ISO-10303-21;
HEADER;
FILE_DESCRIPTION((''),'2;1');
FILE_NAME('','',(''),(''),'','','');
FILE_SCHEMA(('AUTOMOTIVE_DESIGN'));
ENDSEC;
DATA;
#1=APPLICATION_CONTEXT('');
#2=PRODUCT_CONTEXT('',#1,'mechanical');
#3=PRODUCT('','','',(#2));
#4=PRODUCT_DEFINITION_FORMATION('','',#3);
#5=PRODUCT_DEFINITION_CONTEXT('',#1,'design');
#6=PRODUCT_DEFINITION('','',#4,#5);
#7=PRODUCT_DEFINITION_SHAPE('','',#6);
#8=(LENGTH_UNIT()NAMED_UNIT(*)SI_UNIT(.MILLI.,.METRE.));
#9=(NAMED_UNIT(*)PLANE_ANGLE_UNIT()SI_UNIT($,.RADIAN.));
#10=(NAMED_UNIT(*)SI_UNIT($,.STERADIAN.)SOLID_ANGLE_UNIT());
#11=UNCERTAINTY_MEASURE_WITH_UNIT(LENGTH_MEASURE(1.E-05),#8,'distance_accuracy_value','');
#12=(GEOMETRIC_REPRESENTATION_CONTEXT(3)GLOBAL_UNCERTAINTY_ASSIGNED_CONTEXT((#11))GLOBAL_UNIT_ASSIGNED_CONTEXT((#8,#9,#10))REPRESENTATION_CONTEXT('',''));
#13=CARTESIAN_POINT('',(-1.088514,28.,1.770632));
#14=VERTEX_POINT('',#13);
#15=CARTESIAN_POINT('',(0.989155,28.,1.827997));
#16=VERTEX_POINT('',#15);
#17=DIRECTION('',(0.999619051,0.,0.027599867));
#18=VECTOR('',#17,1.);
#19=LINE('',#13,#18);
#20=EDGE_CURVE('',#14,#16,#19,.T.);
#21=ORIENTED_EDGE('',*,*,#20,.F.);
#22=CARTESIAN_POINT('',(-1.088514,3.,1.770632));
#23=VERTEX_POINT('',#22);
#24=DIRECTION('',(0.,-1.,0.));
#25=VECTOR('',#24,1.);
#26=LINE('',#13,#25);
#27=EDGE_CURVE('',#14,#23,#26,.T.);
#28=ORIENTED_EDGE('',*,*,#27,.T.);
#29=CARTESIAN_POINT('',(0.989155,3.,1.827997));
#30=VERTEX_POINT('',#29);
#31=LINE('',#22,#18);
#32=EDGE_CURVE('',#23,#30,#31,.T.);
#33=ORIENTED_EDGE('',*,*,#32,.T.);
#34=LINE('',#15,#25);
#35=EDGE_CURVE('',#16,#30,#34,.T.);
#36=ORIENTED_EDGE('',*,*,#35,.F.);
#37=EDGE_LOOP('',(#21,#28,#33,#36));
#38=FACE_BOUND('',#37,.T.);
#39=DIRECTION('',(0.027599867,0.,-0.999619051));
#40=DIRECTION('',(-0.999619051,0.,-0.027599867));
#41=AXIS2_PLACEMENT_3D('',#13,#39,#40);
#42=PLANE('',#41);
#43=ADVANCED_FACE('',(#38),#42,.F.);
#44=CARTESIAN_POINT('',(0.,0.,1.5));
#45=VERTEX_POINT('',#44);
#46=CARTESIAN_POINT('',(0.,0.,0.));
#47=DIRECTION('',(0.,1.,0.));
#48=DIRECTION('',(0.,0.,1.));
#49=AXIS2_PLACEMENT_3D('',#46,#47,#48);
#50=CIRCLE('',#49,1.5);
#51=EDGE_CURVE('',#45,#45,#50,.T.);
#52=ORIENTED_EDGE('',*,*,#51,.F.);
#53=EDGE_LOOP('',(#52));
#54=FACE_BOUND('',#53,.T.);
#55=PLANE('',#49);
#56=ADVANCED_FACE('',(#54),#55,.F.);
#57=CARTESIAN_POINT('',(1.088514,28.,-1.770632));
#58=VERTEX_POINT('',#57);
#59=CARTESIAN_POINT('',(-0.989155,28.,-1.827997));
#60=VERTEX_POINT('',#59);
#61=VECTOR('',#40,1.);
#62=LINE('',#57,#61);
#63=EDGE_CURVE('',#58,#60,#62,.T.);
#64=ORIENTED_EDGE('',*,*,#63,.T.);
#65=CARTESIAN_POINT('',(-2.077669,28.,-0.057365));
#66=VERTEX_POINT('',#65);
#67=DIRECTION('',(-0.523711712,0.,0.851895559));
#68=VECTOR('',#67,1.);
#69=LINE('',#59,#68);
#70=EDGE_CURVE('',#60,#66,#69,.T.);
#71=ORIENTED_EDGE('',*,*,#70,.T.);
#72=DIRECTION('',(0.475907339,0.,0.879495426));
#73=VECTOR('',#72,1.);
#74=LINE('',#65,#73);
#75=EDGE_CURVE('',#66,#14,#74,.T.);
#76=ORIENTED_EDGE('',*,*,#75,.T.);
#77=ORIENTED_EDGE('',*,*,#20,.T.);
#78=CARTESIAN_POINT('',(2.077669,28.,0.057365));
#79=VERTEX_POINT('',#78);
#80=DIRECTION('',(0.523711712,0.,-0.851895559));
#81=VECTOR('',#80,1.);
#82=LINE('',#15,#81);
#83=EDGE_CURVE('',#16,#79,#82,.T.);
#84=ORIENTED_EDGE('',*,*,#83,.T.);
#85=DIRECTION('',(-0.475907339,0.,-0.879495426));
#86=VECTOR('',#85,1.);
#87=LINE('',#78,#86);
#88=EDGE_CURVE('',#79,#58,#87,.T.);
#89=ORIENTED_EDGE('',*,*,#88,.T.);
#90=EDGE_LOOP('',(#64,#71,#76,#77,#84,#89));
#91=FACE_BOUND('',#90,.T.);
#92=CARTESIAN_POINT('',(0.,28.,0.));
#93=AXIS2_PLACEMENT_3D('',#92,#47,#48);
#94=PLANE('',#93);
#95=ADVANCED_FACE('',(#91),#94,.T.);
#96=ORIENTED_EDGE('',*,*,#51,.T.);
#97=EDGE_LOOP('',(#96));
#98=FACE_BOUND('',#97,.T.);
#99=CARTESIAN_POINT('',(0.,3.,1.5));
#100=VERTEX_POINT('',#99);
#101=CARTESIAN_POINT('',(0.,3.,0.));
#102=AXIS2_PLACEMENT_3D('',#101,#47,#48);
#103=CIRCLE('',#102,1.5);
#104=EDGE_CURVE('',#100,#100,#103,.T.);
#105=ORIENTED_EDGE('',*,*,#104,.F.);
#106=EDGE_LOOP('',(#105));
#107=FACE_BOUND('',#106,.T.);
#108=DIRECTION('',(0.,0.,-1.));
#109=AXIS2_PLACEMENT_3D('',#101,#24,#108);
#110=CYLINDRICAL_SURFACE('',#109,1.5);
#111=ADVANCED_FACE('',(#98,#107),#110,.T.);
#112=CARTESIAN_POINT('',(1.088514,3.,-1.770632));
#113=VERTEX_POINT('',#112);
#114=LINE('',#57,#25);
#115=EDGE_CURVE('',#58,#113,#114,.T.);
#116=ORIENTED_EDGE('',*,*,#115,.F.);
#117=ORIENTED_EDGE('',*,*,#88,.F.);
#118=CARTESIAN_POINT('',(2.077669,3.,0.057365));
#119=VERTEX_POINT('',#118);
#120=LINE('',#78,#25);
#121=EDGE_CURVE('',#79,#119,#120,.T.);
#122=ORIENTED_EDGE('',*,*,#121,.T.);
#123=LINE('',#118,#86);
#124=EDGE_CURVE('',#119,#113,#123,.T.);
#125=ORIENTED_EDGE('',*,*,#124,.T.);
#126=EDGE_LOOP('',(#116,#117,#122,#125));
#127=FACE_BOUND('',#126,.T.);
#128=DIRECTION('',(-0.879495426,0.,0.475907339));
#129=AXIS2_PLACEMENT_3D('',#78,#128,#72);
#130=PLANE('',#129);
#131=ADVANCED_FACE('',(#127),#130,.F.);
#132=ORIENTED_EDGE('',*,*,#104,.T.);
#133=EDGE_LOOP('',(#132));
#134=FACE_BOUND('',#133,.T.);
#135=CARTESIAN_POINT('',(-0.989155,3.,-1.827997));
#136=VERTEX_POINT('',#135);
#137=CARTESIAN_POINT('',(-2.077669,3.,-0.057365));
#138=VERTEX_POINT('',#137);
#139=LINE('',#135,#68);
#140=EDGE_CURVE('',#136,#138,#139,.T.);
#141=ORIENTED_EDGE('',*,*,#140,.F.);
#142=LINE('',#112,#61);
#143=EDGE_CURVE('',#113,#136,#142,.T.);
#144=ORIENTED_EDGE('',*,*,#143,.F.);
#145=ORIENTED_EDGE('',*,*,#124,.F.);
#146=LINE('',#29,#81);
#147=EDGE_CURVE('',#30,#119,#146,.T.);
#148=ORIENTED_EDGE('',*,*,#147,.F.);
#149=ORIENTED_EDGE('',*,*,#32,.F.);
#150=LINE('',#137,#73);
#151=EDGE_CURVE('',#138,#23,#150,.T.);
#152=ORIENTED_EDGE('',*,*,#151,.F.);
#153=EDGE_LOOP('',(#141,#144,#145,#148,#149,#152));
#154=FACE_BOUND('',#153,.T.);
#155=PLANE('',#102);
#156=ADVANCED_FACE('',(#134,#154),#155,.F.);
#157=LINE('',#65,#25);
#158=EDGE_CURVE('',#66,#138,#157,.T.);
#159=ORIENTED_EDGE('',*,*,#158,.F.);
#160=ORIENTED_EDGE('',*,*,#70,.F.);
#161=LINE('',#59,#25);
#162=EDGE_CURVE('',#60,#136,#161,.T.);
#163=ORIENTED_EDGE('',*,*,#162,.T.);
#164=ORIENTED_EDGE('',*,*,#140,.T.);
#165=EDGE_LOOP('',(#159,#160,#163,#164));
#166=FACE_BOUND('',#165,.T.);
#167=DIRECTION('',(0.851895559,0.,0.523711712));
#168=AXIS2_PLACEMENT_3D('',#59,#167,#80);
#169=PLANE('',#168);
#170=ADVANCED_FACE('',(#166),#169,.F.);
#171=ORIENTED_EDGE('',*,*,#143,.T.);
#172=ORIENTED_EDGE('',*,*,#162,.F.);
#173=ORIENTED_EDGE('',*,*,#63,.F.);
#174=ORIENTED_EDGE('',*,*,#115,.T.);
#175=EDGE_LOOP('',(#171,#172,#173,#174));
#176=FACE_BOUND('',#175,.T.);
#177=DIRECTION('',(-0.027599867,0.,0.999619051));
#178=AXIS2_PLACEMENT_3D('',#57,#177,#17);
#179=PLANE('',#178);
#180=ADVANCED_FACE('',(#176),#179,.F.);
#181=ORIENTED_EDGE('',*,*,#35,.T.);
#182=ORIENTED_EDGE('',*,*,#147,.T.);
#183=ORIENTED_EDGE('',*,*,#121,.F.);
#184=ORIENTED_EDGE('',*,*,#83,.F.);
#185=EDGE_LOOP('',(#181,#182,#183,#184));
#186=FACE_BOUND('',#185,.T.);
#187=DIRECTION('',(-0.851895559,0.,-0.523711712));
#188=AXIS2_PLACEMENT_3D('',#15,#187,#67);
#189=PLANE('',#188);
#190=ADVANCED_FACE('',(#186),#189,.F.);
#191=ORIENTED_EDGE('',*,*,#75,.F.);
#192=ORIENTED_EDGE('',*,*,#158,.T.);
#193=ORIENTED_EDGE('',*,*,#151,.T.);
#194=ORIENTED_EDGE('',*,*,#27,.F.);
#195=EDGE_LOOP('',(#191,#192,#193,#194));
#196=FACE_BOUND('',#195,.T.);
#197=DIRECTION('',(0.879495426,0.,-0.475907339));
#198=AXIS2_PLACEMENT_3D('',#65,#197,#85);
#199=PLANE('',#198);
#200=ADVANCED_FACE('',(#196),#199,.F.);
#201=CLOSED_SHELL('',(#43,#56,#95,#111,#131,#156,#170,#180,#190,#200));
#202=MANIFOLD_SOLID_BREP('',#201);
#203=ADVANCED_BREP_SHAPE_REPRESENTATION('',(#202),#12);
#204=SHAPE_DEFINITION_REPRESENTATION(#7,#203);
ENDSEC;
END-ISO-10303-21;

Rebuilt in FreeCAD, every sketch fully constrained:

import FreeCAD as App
import Part
import Sketcher

V = App.Vector


def add_polygon(sketch, points):
    """Adds a closed chain of lines whose ends are joined by coincident constraints."""
    first, n = sketch.GeometryCount, len(points)
    for a, b in zip(points, points[1:] + points[:1]):
        sketch.addGeometry(Part.LineSegment(App.Vector(*a, 0), App.Vector(*b, 0)), False)
    for i in range(n):
        sketch.addConstraint(Sketcher.Constraint("Coincident", first + i, 2, first + (i + 1) % n, 1))

doc = App.newDocument("Part")
body = doc.addObject("PartDesign::Body", "Body")

sketch1 = body.newObject("Sketcher::SketchObject", "Sketch")
sketch1.AttachmentSupport = (doc.getObject("XZ_Plane"), [""])
sketch1.MapMode = "FlatFace"
sketch1.addGeometry(Part.Circle(V(0, 0, 0), V(0, 0, 1), 1.5), False)
sketch1.addConstraint(Sketcher.Constraint("Coincident", 0, 3, -1, 1))
sketch1.addConstraint(Sketcher.Constraint("Diameter", 0, 3.0))
pad1 = body.newObject("PartDesign::Pad", "Pad")
pad1.Profile = sketch1
pad1.Length = 3
pad1.Reversed = True

sketch2 = body.newObject("Sketcher::SketchObject", "Sketch001")
sketch2.AttachmentSupport = (doc.getObject("XZ_Plane"), [""])
sketch2.MapMode = "FlatFace"
sketch2.AttachmentOffset = App.Placement(V(0, 0, -3), App.Rotation())
add_polygon(sketch2, [(-1, -1.8), (-2.1, -0.1), (-1.1, 1.8), (1, 1.8), (2.1, 0.1), (1.1, -1.8)])
sketch2.addConstraint(Sketcher.Constraint("Symmetric", 0, 2, 3, 2, -1, 1))
sketch2.addConstraint(Sketcher.Constraint("Symmetric", 1, 2, 4, 2, -1, 1))
sketch2.addConstraint(Sketcher.Constraint("Symmetric", 2, 2, 5, 2, -1, 1))
sketch2.addConstraint(Sketcher.Constraint("Equal", 0, 1))
sketch2.addConstraint(Sketcher.Constraint("Equal", 1, 2))
sketch2.addConstraint(Sketcher.Constraint("Distance", 0, 2.078461))
sketch2.addConstraint(Sketcher.Constraint("DistanceX", 0, 2, -1, 1, 2.077669))
sketch2.addConstraint(Sketcher.Constraint("DistanceY", -1, 1, 1, 2, 1.770632))
sketch2.addConstraint(Sketcher.Constraint("DistanceY", 3, 2, 2, 2, 1.770632))
pad2 = body.newObject("PartDesign::Pad", "Pad001")
pad2.Profile = sketch2
pad2.Length = 25
pad2.Reversed = True

doc.recompute()
